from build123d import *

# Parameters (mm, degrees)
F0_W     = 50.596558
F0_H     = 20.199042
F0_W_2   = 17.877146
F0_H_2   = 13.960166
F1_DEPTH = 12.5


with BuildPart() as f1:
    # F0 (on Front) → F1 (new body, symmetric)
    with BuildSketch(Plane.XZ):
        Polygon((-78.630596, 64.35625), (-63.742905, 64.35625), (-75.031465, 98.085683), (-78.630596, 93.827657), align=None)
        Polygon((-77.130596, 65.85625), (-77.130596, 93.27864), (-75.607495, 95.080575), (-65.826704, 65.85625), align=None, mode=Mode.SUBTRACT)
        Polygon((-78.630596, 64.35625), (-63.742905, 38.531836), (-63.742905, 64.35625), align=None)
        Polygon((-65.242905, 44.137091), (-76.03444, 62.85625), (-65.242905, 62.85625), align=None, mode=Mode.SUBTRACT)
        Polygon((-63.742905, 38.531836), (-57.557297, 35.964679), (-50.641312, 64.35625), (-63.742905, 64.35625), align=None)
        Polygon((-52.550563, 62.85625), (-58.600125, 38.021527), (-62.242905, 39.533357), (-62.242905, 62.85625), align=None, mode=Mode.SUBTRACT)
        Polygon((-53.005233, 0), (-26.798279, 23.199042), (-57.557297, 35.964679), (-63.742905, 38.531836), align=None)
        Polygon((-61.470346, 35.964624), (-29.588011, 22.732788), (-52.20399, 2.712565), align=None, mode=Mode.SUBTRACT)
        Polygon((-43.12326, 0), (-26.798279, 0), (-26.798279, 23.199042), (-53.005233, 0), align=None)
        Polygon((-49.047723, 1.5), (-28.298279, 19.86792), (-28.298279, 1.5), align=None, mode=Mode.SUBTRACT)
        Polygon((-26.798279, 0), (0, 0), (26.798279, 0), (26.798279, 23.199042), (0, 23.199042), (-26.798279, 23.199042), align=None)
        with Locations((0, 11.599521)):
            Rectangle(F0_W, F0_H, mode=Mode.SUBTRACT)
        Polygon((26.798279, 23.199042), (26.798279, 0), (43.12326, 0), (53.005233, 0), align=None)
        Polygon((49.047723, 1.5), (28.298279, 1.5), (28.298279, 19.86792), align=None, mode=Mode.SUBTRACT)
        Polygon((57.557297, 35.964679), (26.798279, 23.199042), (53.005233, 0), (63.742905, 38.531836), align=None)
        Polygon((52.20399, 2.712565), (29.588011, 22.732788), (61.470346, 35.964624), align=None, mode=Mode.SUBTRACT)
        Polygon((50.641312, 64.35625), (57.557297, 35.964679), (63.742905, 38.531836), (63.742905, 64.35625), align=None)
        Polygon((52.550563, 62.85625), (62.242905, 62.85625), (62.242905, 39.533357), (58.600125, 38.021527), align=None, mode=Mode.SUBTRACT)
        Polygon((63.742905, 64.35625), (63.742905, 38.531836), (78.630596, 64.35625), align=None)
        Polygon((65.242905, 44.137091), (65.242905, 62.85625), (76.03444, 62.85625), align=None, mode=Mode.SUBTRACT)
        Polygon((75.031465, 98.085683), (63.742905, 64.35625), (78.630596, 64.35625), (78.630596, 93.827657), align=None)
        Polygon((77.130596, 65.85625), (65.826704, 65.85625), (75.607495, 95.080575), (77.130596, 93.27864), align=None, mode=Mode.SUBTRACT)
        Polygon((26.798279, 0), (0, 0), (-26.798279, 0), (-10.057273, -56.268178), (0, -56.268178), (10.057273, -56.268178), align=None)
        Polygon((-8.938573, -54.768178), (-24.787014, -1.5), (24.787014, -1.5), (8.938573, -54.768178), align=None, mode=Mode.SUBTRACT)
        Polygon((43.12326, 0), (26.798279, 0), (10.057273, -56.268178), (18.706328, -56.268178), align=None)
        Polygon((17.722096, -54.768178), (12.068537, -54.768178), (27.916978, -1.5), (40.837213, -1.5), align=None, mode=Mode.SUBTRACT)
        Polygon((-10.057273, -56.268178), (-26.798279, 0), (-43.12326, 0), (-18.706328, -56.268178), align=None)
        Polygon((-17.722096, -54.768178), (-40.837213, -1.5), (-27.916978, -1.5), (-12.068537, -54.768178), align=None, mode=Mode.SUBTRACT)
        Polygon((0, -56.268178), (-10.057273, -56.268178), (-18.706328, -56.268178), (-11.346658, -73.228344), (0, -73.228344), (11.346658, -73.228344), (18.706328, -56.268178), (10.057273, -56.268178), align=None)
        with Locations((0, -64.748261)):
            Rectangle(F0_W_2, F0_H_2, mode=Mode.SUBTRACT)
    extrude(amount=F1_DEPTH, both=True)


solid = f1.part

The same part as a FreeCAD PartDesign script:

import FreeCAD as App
import Part
import Sketcher


def add_polygon(sketch, points):
    """Adds a closed chain of lines whose ends are joined by coincident constraints."""
    first, n = sketch.GeometryCount, len(points)
    for a, b in zip(points, points[1:] + points[:1]):
        sketch.addGeometry(Part.LineSegment(App.Vector(*a, 0), App.Vector(*b, 0)), False)
    for i in range(n):
        sketch.addConstraint(Sketcher.Constraint("Coincident", first + i, 2, first + (i + 1) % n, 1))

doc = App.newDocument("Part")
body = doc.addObject("PartDesign::Body", "Body")

# Sketch on XZ plane
sketch1 = doc.addObject("Sketcher::SketchObject", "Sketch")
body.addObject(sketch1)
sketch1.AttachmentSupport = (doc.XZ_Plane, [""])
sketch1.MapMode = "FlatFace"
add_polygon(sketch1, [(-78.6, 93.8), (-78.6, 64.4), (-63.7, 38.5), (-53, 0), (-43.1, 0), (-18.7, -56.3), (-11.3, -73.2), (11.3, -73.2), (18.7, -56.3), (43.1, 0), (53, 0), (63.7, 38.5), (78.6, 64.4), (78.6, 93.8), (75, 98.1), (63.7, 64.4), (50.6, 64.4), (57.6, 36), (26.8, 23.2), (-26.8, 23.2), (-57.6, 36), (-50.6, 64.4), (-63.7, 64.4), (-75, 98.1)])  # lines 0-23
add_polygon(sketch1, [(-28.3, 1.5), (-49, 1.5), (-28.3, 19.9)])  # lines 24-26
add_polygon(sketch1, [(-12.1, -54.8), (-17.7, -54.8), (-40.8, -1.5), (-27.9, -1.5)])  # lines 27-30
add_polygon(sketch1, [(8.9, -71.7), (-8.9, -71.7), (-8.9, -57.8), (8.9, -57.8)])  # lines 31-34
add_polygon(sketch1, [(8.9, -54.8), (-8.9, -54.8), (-24.8, -1.5), (24.8, -1.5)])  # lines 35-38
add_polygon(sketch1, [(40.8, -1.5), (17.7, -54.8), (12.1, -54.8), (27.9, -1.5)])  # lines 39-42
add_polygon(sketch1, [(25.3, 1.5), (-25.3, 1.5), (-25.3, 21.7), (25.3, 21.7)])  # lines 43-46
add_polygon(sketch1, [(28.3, 19.9), (49, 1.5), (28.3, 1.5)])  # lines 47-49
add_polygon(sketch1, [(-52.2, 2.7), (-61.5, 36), (-29.6, 22.7)])  # lines 50-52
add_polygon(sketch1, [(-62.2, 62.9), (-52.6, 62.9), (-58.6, 38), (-62.2, 39.5)])  # lines 53-56
add_polygon(sketch1, [(-65.2, 62.9), (-65.2, 44.1), (-76, 62.9)])  # lines 57-59
add_polygon(sketch1, [(-65.8, 65.9), (-77.1, 65.9), (-77.1, 93.3), (-75.6, 95.1)])  # lines 60-63
add_polygon(sketch1, [(61.5, 36), (52.2, 2.7), (29.6, 22.7)])  # lines 64-66
add_polygon(sketch1, [(58.6, 38), (52.6, 62.9), (62.2, 62.9), (62.2, 39.5)])  # lines 67-70
add_polygon(sketch1, [(76, 62.9), (65.2, 44.1), (65.2, 62.9)])  # lines 71-73
add_polygon(sketch1, [(77.1, 93.3), (77.1, 65.9), (65.8, 65.9), (75.6, 95.1)])  # lines 74-77
sketch1.addConstraint([
    Sketcher.Constraint("Vertical", 0),
    Sketcher.Constraint("Horizontal", 3),
    Sketcher.Constraint("Horizontal", 6),
    Sketcher.Constraint("Horizontal", 9),
    Sketcher.Constraint("Vertical", 12),
    Sketcher.Constraint("Horizontal", 15),
    Sketcher.Constraint("Horizontal", 18),
    Sketcher.Constraint("Horizontal", 21),
    Sketcher.Constraint("Horizontal", 24),
    Sketcher.Constraint("Vertical", 26),
    Sketcher.Constraint("Horizontal", 27),
    Sketcher.Constraint("Horizontal", 29),
    Sketcher.Constraint("Horizontal", 31),
    Sketcher.Constraint("Vertical", 32),
    Sketcher.Constraint("Horizontal", 33),
    Sketcher.Constraint("Vertical", 34),
    Sketcher.Constraint("Horizontal", 35),
    Sketcher.Constraint("Horizontal", 37),
    Sketcher.Constraint("Horizontal", 40),
    Sketcher.Constraint("Horizontal", 42),
    Sketcher.Constraint("Horizontal", 43),
    Sketcher.Constraint("Vertical", 44),
    Sketcher.Constraint("Horizontal", 45),
    Sketcher.Constraint("Vertical", 46),
    Sketcher.Constraint("Horizontal", 48),
    Sketcher.Constraint("Vertical", 49),
    Sketcher.Constraint("Horizontal", 53),
    Sketcher.Constraint("Vertical", 56),
    Sketcher.Constraint("Vertical", 57),
    Sketcher.Constraint("Horizontal", 59),
    Sketcher.Constraint("Horizontal", 60),
    Sketcher.Constraint("Vertical", 61),
    Sketcher.Constraint("Horizontal", 68),
    Sketcher.Constraint("Vertical", 69),
    Sketcher.Constraint("Vertical", 72),
    Sketcher.Constraint("Horizontal", 73),
    Sketcher.Constraint("Vertical", 74),
    Sketcher.Constraint("Horizontal", 75),
    Sketcher.Constraint("Symmetric", 3, 2, 8, 2, -1, 1),
    Sketcher.Constraint("Symmetric", 4, 2, 7, 2, -2),
    Sketcher.Constraint("Symmetric", 2, 2, 9, 2, -2),
    Sketcher.Constraint("Symmetric", 1, 2, 10, 2, -2),
    Sketcher.Constraint("Symmetric", 0, 2, 11, 2, -2),
    Sketcher.Constraint("Symmetric", 16, 2, 19, 2, -2),
    Sketcher.Constraint("Symmetric", 15, 2, 20, 2, -2),
    Sketcher.Constraint("Symmetric", 13, 2, 22, 2, -2),
    Sketcher.Constraint("Symmetric", 27, 2, 39, 2, -2),
    Sketcher.Constraint("Symmetric", 29, 2, 41, 2, -2),
    Sketcher.Constraint("Symmetric", 24, 2, 47, 2, -2),
    Sketcher.Constraint("Symmetric", 25, 2, 49, 2, -2),
    Sketcher.Constraint("Symmetric", 52, 2, 64, 2, -2),
    Sketcher.Constraint("Symmetric", 51, 2, 65, 2, -2),
    Sketcher.Constraint("Symmetric", 50, 2, 66, 2, -2),
    Sketcher.Constraint("Symmetric", 53, 2, 67, 2, -2),
    Sketcher.Constraint("Symmetric", 55, 2, 69, 2, -2),
    Sketcher.Constraint("Symmetric", 54, 2, 70, 2, -2),
    Sketcher.Constraint("Symmetric", 57, 2, 71, 2, -2),
    Sketcher.Constraint("Symmetric", 58, 2, 73, 2, -2),
    Sketcher.Constraint("Symmetric", 60, 2, 74, 2, -2),
    Sketcher.Constraint("Symmetric", 62, 2, 76, 2, -2),
    Sketcher.Constraint("Parallel", 4, 5),
    Sketcher.Constraint("Parallel", 7, 8),
    Sketcher.Constraint("Parallel", 5, 28),
    Sketcher.Constraint("Parallel", 30, 36),
    Sketcher.Constraint("Parallel", 8, 39),
    Sketcher.Constraint("Parallel", 38, 41),
    Sketcher.Constraint("Parallel", 2, 50),
    Sketcher.Constraint("Parallel", 19, 51),
    Sketcher.Constraint("Parallel", 25, 52),
    Sketcher.Constraint("Parallel", 20, 54),
    Sketcher.Constraint("Parallel", 51, 55),
    Sketcher.Constraint("Parallel", 1, 58),
    Sketcher.Constraint("Parallel", 23, 62),
    Sketcher.Constraint("Parallel", 22, 63),
    Sketcher.Constraint("Parallel", 17, 66),
    Sketcher.Constraint("Parallel", 14, 76),
    Sketcher.Constraint("Parallel", 13, 77),
    Sketcher.Constraint("Horizontal", 11, 2, 14, 2),
    Sketcher.Constraint("Horizontal", 12, 2, 23, 2),
    Sketcher.Constraint("Horizontal", 30, 2, 35, 2),
    Sketcher.Constraint("Horizontal", 29, 2, 36, 2),
    Sketcher.Constraint("Horizontal", 26, 2, 43, 2),
    Sketcher.Constraint("Horizontal", 56, 2, 58, 2),
    Sketcher.Constraint("Vertical", 10, 2, 14, 2),
    Sketcher.Constraint("Vertical", 1, 2, 21, 2),
    Sketcher.Constraint("Vertical", 32, 2, 35, 2),
    Sketcher.Constraint("Vertical", 34, 2, 38, 2),
    Sketcher.Constraint("Equal", 27, 40),
    Sketcher.Constraint("Equal", 50, 51),
    Sketcher.Constraint("Distance", 2, 40.0),
    Sketcher.Constraint("DistanceY", -1, 1, 24, 2, 1.5),
    Sketcher.Constraint("DistanceY", 28, 2, -1, 1, 1.5),
    Sketcher.Constraint("DistanceX", 18, 2, 18, 1, 53.596558),
    Sketcher.Constraint("DistanceX", 27, 2, 27, 1, 5.653559),
    Sketcher.Constraint("DistanceX", 43, 2, 43, 1, 50.596558),
    Sketcher.Constraint("DistanceX", 60, 2, 60, 1, 11.303892),
    Sketcher.Constraint("DistanceY", 26, 2, 26, 1, 18.36792),
    Sketcher.Constraint("DistanceY", 44, 1, 44, 2, 20.199042),
    Sketcher.Constraint("DistanceY", 57, 2, 57, 1, 18.719159),
    Sketcher.Constraint("DistanceY", 61, 1, 61, 2, 27.42239),
    Sketcher.Constraint("Distance", 1, 29.80845),
    Sketcher.Constraint("Distance", 13, 5.57535),
    Sketcher.Constraint("Distance", 14, 35.568332),
    Sketcher.Constraint("Distance", 30, 55.575821),
    Sketcher.Constraint("Distance", 50, 34.51905),
    Sketcher.Constraint("Distance", 52, 30.204169),
    Sketcher.Constraint("Distance", 54, 25.560921),
    Sketcher.Constraint("Distance", 58, 21.607039),
    Sketcher.Constraint("Distance", 62, 2.359408),
    Sketcher.Constraint("DistanceX", 3, 1, 3, 2, 9.881973),
    Sketcher.Constraint("DistanceX", 6, 1, 6, 2, 22.693316),
    Sketcher.Constraint("DistanceX", 15, 2, 15, 1, 13.101593),
    Sketcher.Constraint("DistanceX", 24, 2, 24, 1, 20.749444),
    Sketcher.Constraint("DistanceX", 29, 1, 29, 2, 12.920235),
    Sketcher.Constraint("DistanceX", 31, 2, 31, 1, 17.877146),
    Sketcher.Constraint("DistanceX", 37, 1, 37, 2, 49.574028),
    Sketcher.Constraint("DistanceX", 53, 1, 53, 2, 9.692342),
    Sketcher.Constraint("DistanceY", 32, 1, 32, 2, 13.960166),
    Sketcher.Constraint("DistanceY", 56, 1, 56, 2, 23.322893),
    Sketcher.Constraint("DistanceX", 3, 2, -1, 1, 43.12326),
    Sketcher.Constraint("DistanceY", -1, 1, 16, 2, 35.964679),
    Sketcher.Constraint("DistanceX", 25, 2, -1, 1, 28.298279),
    Sketcher.Constraint("DistanceX", 29, 2, -1, 1, 27.916978),
    Sketcher.Constraint("DistanceX", 43, 2, -1, 1, 25.298279),
    Sketcher.Constraint("DistanceX", 51, 2, -1, 1, 29.588011),
    Sketcher.Constraint("DistanceY", -1, 1, 53, 2, 62.85625),
    Sketcher.Constraint("DistanceX", 58, 2, -1, 1, 76.03444),
    Sketcher.Constraint("DistanceY", -1, 1, 60, 2, 65.85625),
    Sketcher.Constraint("Distance", 4, 61.337545),
    Sketcher.Constraint("DistanceX", 31, 2, -1, 1, 8.938573),
    Sketcher.Constraint("DistanceY", 31, 2, -1, 1, 71.728344),
    Sketcher.Constraint("DistanceY", -1, 1, 50, 2, 35.964624),
    Sketcher.Constraint("DistanceX", 53, 2, -1, 1, 52.550563),
    Sketcher.Constraint("DistanceX", 60, 2, -1, 1, 77.130596),
])
pad1 = doc.addObject("PartDesign::Pad", "Pad")
body.addObject(pad1)
pad1.Profile = sketch1
pad1.Length = 25
pad1.Midplane = True

doc.recompute()
